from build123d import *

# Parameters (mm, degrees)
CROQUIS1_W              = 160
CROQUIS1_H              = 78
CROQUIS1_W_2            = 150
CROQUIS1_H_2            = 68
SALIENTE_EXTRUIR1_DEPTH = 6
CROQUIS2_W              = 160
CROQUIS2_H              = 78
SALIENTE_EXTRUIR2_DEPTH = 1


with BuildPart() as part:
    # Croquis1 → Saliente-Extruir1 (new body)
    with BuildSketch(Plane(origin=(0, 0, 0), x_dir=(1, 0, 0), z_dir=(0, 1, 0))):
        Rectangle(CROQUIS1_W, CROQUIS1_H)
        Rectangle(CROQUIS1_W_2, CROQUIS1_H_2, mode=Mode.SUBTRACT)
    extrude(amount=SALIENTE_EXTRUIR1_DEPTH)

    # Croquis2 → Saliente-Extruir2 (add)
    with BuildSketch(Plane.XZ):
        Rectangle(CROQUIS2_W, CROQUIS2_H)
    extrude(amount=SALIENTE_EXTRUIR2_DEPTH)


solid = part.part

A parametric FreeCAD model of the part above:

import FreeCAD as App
import Part
import Sketcher
from FreeCAD import Vector


def add_polygon(sketch, points):
    """Adds a closed chain of lines whose ends are joined by coincident constraints."""
    first, n = sketch.GeometryCount, len(points)
    for a, b in zip(points, points[1:] + points[:1]):
        sketch.addGeometry(Part.LineSegment(App.Vector(*a, 0), App.Vector(*b, 0)), False)
    for i in range(n):
        sketch.addConstraint(Sketcher.Constraint("Coincident", first + i, 2, first + (i + 1) % n, 1))

doc = App.newDocument("Part")
params = doc.addObject("Spreadsheet::Sheet", "Params")
for row, (alias, value) in enumerate([
    ("sketch1_width", "160 mm"),
    ("sketch1_width2", "150 mm"),
    ("sketch1_height", "78 mm"),
    ("sketch1_height2", "68 mm"),
    ("pad1_length", "6 mm"),
    ("sketch2_width", "160 mm"),
    ("sketch2_height", "78 mm"),
    ("pad2_length", "1 mm"),
], start=1):
    params.set(f"A{row}", alias)
    params.set(f"B{row}", "=" + value)
    params.setAlias(f"B{row}", alias)

body = doc.addObject("PartDesign::Body", "Body")

# Sketch on XZ plane
sketch1 = body.newObject("Sketcher::SketchObject", "Sketch")
sketch1.AttachmentSupport = (doc.getObject("XZ_Plane"), [""])
sketch1.MapMode = "FlatFace"
add_polygon(sketch1, [(-80, -39), (-80, 39), (80, 39), (80, -39)])  # lines 0-3
add_polygon(sketch1, [(75, 34), (-75, 34), (-75, -34), (75, -34)])  # lines 4-7
sketch1.addConstraint(Sketcher.Constraint("Vertical", 0))
sketch1.addConstraint(Sketcher.Constraint("Horizontal", 1))
sketch1.addConstraint(Sketcher.Constraint("Vertical", 2))
sketch1.addConstraint(Sketcher.Constraint("Horizontal", 3))
sketch1.addConstraint(Sketcher.Constraint("Horizontal", 4))
sketch1.addConstraint(Sketcher.Constraint("Vertical", 5))
sketch1.addConstraint(Sketcher.Constraint("Horizontal", 6))
sketch1.addConstraint(Sketcher.Constraint("Vertical", 7))
sketch1.addConstraint(Sketcher.Constraint("Symmetric", 0, 2, 2, 2, -1, 1))
sketch1.addConstraint(Sketcher.Constraint("Symmetric", 4, 2, 6, 2, -1, 1))
sketch1.addConstraint(Sketcher.Constraint("DistanceX", 1, 1, 1, 2, 160.0))
sketch1.addConstraint(Sketcher.Constraint("DistanceX", 4, 2, 4, 1, 150.0))
sketch1.addConstraint(Sketcher.Constraint("DistanceY", 0, 1, 0, 2, 78.0))
sketch1.addConstraint(Sketcher.Constraint("DistanceY", 5, 2, 5, 1, 68.0))
sketch1.setExpression("Constraints[18]", "Params.sketch1_width")
sketch1.setExpression("Constraints[19]", "Params.sketch1_width2")
sketch1.setExpression("Constraints[20]", "Params.sketch1_height")
sketch1.setExpression("Constraints[21]", "Params.sketch1_height2")
pad1 = body.newObject("PartDesign::Pad", "Pad")
pad1.Profile = sketch1
pad1.setExpression("Length", "Params.pad1_length")
pad1.Reversed = True

# Sketch on XZ plane
sketch2 = body.newObject("Sketcher::SketchObject", "Sketch001")
sketch2.AttachmentSupport = (doc.getObject("XZ_Plane"), [""])
sketch2.MapMode = "FlatFace"
add_polygon(sketch2, [(-80, 39), (-80, -39), (80, -39), (80, 39)])  # lines 0-3
sketch2.addConstraint(Sketcher.Constraint("Vertical", 0))
sketch2.addConstraint(Sketcher.Constraint("Horizontal", 1))
sketch2.addConstraint(Sketcher.Constraint("Vertical", 2))
sketch2.addConstraint(Sketcher.Constraint("Horizontal", 3))
sketch2.addConstraint(Sketcher.Constraint("Symmetric", 0, 2, 2, 2, -1, 1))
sketch2.addConstraint(Sketcher.Constraint("DistanceX", 1, 1, 1, 2, 160.0))
sketch2.addConstraint(Sketcher.Constraint("DistanceY", 0, 2, 0, 1, 78.0))
sketch2.setExpression("Constraints[9]", "Params.sketch2_width")
sketch2.setExpression("Constraints[10]", "Params.sketch2_height")
pad2 = body.newObject("PartDesign::Pad", "Pad001")
pad2.Profile = sketch2
pad2.setExpression("Length", "Params.pad2_length")

doc.recompute()
